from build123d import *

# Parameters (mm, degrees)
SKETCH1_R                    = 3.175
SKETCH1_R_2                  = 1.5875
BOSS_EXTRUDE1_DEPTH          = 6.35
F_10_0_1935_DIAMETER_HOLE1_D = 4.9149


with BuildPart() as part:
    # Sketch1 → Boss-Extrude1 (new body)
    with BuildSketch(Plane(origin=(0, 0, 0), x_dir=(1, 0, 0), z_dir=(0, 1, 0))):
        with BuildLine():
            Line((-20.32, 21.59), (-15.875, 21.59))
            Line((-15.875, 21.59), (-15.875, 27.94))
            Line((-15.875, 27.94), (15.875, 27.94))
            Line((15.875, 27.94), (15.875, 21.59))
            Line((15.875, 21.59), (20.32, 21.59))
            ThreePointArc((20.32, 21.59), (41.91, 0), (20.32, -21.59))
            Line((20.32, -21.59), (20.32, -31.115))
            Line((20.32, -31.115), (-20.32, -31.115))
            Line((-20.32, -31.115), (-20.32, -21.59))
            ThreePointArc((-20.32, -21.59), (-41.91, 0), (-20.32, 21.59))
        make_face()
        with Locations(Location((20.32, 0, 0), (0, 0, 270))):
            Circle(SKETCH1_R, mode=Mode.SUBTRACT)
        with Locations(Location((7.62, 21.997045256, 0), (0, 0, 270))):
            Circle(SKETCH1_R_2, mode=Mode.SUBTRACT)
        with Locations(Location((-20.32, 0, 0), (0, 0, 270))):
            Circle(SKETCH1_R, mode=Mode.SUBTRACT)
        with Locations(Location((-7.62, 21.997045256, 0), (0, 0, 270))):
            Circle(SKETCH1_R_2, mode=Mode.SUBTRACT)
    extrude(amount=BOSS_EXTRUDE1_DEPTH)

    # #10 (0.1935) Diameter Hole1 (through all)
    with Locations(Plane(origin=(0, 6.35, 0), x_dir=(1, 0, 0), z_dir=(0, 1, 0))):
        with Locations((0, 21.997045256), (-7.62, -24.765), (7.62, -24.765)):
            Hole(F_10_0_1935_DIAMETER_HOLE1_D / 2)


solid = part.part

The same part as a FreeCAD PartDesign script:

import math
import FreeCAD as App
import Part
import Sketcher

V = App.Vector
Q = App.Units.Quantity

doc = App.newDocument("Part")
body = doc.addObject("PartDesign::Body", "Body")

# Sketch on XZ plane
sketch1 = body.newObject("Sketcher::SketchObject", "Sketch")
sketch1.AttachmentSupport = (doc.getObject("XZ_Plane"), [""])
sketch1.MapMode = "FlatFace"
sketch1.addGeometry(Part.LineSegment(V(-15.9, -21.6, 0), V(-20.3, -21.6, 0)), False)
sketch1.addGeometry(Part.ArcOfCircle(Part.Circle(V(-20.3, 0, 0), V(0, 0, 1), 21.6), math.radians(90), math.radians(270)), False)
sketch1.addGeometry(Part.LineSegment(V(-20.3, 21.6, 0), V(-20.3, 31.1, 0)), False)
sketch1.addGeometry(Part.LineSegment(V(-20.3, 31.1, 0), V(20.3, 31.1, 0)), False)
sketch1.addGeometry(Part.LineSegment(V(20.3, 31.1, 0), V(20.3, 21.6, 0)), False)
sketch1.addGeometry(Part.ArcOfCircle(Part.Circle(V(20.3, 0, 0), V(0, 0, 1), 21.6), math.radians(-90), math.radians(90)), False)
sketch1.addGeometry(Part.LineSegment(V(20.3, -21.6, 0), V(15.9, -21.6, 0)), False)
sketch1.addGeometry(Part.LineSegment(V(15.9, -21.6, 0), V(15.9, -27.9, 0)), False)
sketch1.addGeometry(Part.LineSegment(V(15.9, -27.9, 0), V(-15.9, -27.9, 0)), False)
sketch1.addGeometry(Part.LineSegment(V(-15.9, -27.9, 0), V(-15.9, -21.6, 0)), False)
sketch1.addGeometry(Part.Circle(V(20.3, 0, 0), V(0, 0, 1), 3.2), False)
sketch1.addGeometry(Part.Circle(V(-20.3, 0, 0), V(0, 0, 1), 3.2), False)
sketch1.addGeometry(Part.Circle(V(7.6, -22, 0), V(0, 0, 1), 1.6), False)
sketch1.addGeometry(Part.Circle(V(-7.6, -22, 0), V(0, 0, 1), 1.6), False)
sketch1.addConstraint(Sketcher.Constraint("Tangent", 0, 2, 1, 2))
sketch1.addConstraint(Sketcher.Constraint("Coincident", 1, 1, 2, 1))
sketch1.addConstraint(Sketcher.Constraint("Coincident", 2, 2, 3, 1))
sketch1.addConstraint(Sketcher.Constraint("Coincident", 3, 2, 4, 1))
sketch1.addConstraint(Sketcher.Constraint("Coincident", 4, 2, 5, 2))
sketch1.addConstraint(Sketcher.Constraint("Tangent", 5, 1, 6, 1))
sketch1.addConstraint(Sketcher.Constraint("Coincident", 6, 2, 7, 1))
sketch1.addConstraint(Sketcher.Constraint("Coincident", 7, 2, 8, 1))
sketch1.addConstraint(Sketcher.Constraint("Coincident", 8, 2, 9, 1))
sketch1.addConstraint(Sketcher.Constraint("Coincident", 9, 2, 0, 1))
sketch1.addConstraint(Sketcher.Constraint("Horizontal", 0))
sketch1.addConstraint(Sketcher.Constraint("Vertical", 2))
sketch1.addConstraint(Sketcher.Constraint("Horizontal", 3))
sketch1.addConstraint(Sketcher.Constraint("Vertical", 4))
sketch1.addConstraint(Sketcher.Constraint("Horizontal", 6))
sketch1.addConstraint(Sketcher.Constraint("Vertical", 7))
sketch1.addConstraint(Sketcher.Constraint("Horizontal", 8))
sketch1.addConstraint(Sketcher.Constraint("Vertical", 9))
sketch1.addConstraint(Sketcher.Constraint("Coincident", 10, 3, 5, 3))
sketch1.addConstraint(Sketcher.Constraint("Coincident", 11, 3, 1, 3))
sketch1.addConstraint(Sketcher.Constraint("Equal", 1, 5))
sketch1.addConstraint(Sketcher.Constraint("Equal", 10, 11))
sketch1.addConstraint(Sketcher.Constraint("Equal", 12, 13))
sketch1.addConstraint(Sketcher.Constraint("Symmetric", 1, 3, 5, 3, -1, 1))
sketch1.addConstraint(Sketcher.Constraint("Symmetric", 12, 3, 13, 3, -2))
sketch1.addConstraint(Sketcher.Constraint("Symmetric", 1, 1, 4, 2, -2))
sketch1.addConstraint(Sketcher.Constraint("Vertical", 0, 2, 1, 1))
sketch1.addConstraint(Sketcher.Constraint("Equal", 0, 6))
sketch1.addConstraint(Sketcher.Constraint("Diameter", 10, Q("0.25 in")))
sketch1.addConstraint(Sketcher.Constraint("Radius", 1, Q("0.85 in")))
sketch1.addConstraint(Sketcher.Constraint("Diameter", 12, Q("0.125 in")))
sketch1.addConstraint(Sketcher.Constraint("DistanceX", 3, 1, 3, 2, Q("1.6 in")))
sketch1.addConstraint(Sketcher.Constraint("DistanceX", 8, 2, 8, 1, Q("1.25 in")))
sketch1.addConstraint(Sketcher.Constraint("DistanceY", 7, 2, 7, 1, Q("0.25 in")))
sketch1.addConstraint(Sketcher.Constraint("DistanceX", -1, 1, 12, 3, Q("0.3 in")))
sketch1.addConstraint(Sketcher.Constraint("DistanceY", 2, 1, 2, 2, Q("0.375 in")))
sketch1.addConstraint(Sketcher.Constraint("DistanceY", 12, 3, -1, 1, Q("21.997045 mm")))
pad1 = body.newObject("PartDesign::Pad", "Pad")
pad1.Profile = sketch1
pad1.Length = Q("0.25 in")
pad1.Reversed = True

# Sketch on XZ plane
sketch2 = body.newObject("Sketcher::SketchObject", "Sketch001")
sketch2.AttachmentSupport = (doc.getObject("XZ_Plane"), [""])
sketch2.MapMode = "FlatFace"
sketch2.AttachmentOffset = App.Placement(V(0, 0, -0.25 * 25.4), App.Rotation())
sketch2.addGeometry(Part.Circle(V(0, -22, 0), V(0, 0, 1), 2.5), False)
sketch2.addGeometry(Part.Circle(V(-7.6, 24.8, 0), V(0, 0, 1), 2.5), False)
sketch2.addGeometry(Part.Circle(V(7.6, 24.8, 0), V(0, 0, 1), 2.5), False)
sketch2.addConstraint(Sketcher.Constraint("Equal", 0, 1))
sketch2.addConstraint(Sketcher.Constraint("Equal", 1, 2))
sketch2.addConstraint(Sketcher.Constraint("Symmetric", 1, 3, 2, 3, -2))
sketch2.addConstraint(Sketcher.Constraint("PointOnObject", 0, 3, -2))
sketch2.addConstraint(Sketcher.Constraint("Diameter", 0, Q("0.1935 in")))
sketch2.addConstraint(Sketcher.Constraint("DistanceX", 1, 3, -1, 1, Q("0.3 in")))
sketch2.addConstraint(Sketcher.Constraint("DistanceY", -1, 1, 1, 3, Q("0.975 in")))
sketch2.addConstraint(Sketcher.Constraint("DistanceY", 0, 3, -1, 1, Q("21.997045 mm")))
doc.recompute()
hole = body.newObject("PartDesign::Hole", "Hole")
hole.Profile = sketch2
hole.ThreadType = "None"
hole.Diameter = Q("0.1935 in")
hole.DepthType = "ThroughAll"
hole.Reversed = True

doc.recompute()
